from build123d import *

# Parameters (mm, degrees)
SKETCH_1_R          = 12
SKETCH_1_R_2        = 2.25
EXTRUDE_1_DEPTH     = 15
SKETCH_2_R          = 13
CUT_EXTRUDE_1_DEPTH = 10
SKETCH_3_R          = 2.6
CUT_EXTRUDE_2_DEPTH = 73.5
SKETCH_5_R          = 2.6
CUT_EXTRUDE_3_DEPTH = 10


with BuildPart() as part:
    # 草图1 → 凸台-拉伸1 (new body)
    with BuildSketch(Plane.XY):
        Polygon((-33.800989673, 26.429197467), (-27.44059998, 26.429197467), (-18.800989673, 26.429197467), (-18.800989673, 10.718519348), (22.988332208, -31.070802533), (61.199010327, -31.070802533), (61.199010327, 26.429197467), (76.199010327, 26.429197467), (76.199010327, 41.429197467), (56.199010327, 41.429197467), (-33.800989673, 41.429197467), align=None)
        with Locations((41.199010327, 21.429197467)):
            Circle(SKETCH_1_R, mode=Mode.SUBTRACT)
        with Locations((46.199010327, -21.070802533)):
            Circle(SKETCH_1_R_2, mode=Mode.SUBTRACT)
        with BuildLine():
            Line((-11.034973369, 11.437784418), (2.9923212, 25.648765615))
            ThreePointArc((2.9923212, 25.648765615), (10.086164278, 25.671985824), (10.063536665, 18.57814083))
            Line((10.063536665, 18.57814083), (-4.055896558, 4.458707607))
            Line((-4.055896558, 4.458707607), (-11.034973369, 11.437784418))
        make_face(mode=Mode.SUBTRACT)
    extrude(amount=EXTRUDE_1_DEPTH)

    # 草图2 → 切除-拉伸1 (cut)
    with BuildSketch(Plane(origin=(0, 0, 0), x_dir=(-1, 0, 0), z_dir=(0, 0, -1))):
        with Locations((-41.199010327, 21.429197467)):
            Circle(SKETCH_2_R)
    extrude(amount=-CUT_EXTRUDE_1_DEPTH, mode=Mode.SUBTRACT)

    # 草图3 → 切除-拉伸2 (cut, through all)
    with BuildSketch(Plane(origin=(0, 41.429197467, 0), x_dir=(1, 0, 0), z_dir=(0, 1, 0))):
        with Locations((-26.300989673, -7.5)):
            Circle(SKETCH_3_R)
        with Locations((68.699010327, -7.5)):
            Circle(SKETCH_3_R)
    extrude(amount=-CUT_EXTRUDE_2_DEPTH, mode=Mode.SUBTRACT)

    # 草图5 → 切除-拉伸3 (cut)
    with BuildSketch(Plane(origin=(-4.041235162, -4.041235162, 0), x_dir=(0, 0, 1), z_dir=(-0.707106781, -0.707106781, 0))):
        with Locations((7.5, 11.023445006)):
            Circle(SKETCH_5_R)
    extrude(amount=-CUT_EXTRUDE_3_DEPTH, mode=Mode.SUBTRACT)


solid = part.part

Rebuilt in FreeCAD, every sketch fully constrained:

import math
import FreeCAD as App
import Part
import Sketcher
from FreeCAD import Vector
Q = App.Units.Quantity

doc = App.newDocument("Part")
body = doc.addObject("PartDesign::Body", "Body")

# Sketch on XY plane
sketch1 = body.newObject("Sketcher::SketchObject", "Sketch")
sketch1.AttachmentSupport = (doc.getObject("XY_Plane"), [""])
sketch1.MapMode = "FlatFace"
sketch1.addGeometry([
    Part.LineSegment(Vector(-33.8, 26.4, 0), Vector(-18.8, 26.4, 0)),  # 0
    Part.LineSegment(Vector(-18.8, 26.4, 0), Vector(-18.8, 10.7, 0)),  # 1
    Part.LineSegment(Vector(-18.8, 10.7, 0), Vector(23, -31.1, 0)),  # 2
    Part.LineSegment(Vector(23, -31.1, 0), Vector(61.2, -31.1, 0)),  # 3
    Part.LineSegment(Vector(61.2, -31.1, 0), Vector(61.2, 26.4, 0)),  # 4
    Part.LineSegment(Vector(61.2, 26.4, 0), Vector(76.2, 26.4, 0)),  # 5
    Part.LineSegment(Vector(76.2, 26.4, 0), Vector(76.2, 41.4, 0)),  # 6
    Part.LineSegment(Vector(76.2, 41.4, 0), Vector(-33.8, 41.4, 0)),  # 7
    Part.LineSegment(Vector(-33.8, 41.4, 0), Vector(-33.8, 26.4, 0)),  # 8
    Part.Circle(Vector(46.2, -21.1, 0), Vector(0, 0, 1), 2.2),  # 9
    Part.LineSegment(Vector(-4.1, 4.5, 0), Vector(-11, 11.4, 0)),  # 10
    Part.LineSegment(Vector(-11, 11.4, 0), Vector(3, 25.6, 0)),  # 11
    Part.ArcOfCircle(Part.Circle(Vector(6.6, 22.1, 0), Vector(0, 0, 1), 5), math.radians(-45), math.radians(135)),  # 12
    Part.LineSegment(Vector(10.1, 18.6, 0), Vector(-4.1, 4.5, 0)),  # 13
    Part.Circle(Vector(41.2, 21.4, 0), Vector(0, 0, 1), 12),  # 14
], False)
sketch1.addConstraint([
    Sketcher.Constraint("Coincident", 0, 2, 1, 1),
    Sketcher.Constraint("Coincident", 1, 2, 2, 1),
    Sketcher.Constraint("Coincident", 2, 2, 3, 1),
    Sketcher.Constraint("Coincident", 3, 2, 4, 1),
    Sketcher.Constraint("Coincident", 4, 2, 5, 1),
    Sketcher.Constraint("Coincident", 5, 2, 6, 1),
    Sketcher.Constraint("Coincident", 6, 2, 7, 1),
    Sketcher.Constraint("Coincident", 7, 2, 8, 1),
    Sketcher.Constraint("Coincident", 8, 2, 0, 1),
    Sketcher.Constraint("Coincident", 10, 2, 11, 1),
    Sketcher.Constraint("Tangent", 11, 2, 12, 2),
    Sketcher.Constraint("Coincident", 12, 1, 13, 1),
    Sketcher.Constraint("Coincident", 13, 2, 10, 1),
    Sketcher.Constraint("Horizontal", 0),
    Sketcher.Constraint("Vertical", 1),
    Sketcher.Constraint("Horizontal", 3),
    Sketcher.Constraint("Vertical", 4),
    Sketcher.Constraint("Horizontal", 5),
    Sketcher.Constraint("Vertical", 6),
    Sketcher.Constraint("Horizontal", 7),
    Sketcher.Constraint("Vertical", 8),
    Sketcher.Constraint("Parallel", 2, 10),
    Sketcher.Constraint("Perpendicular", 10, 13),
    Sketcher.Constraint("Horizontal", 0, 2, 4, 2),
    Sketcher.Constraint("Equal", 0, 5),
    Sketcher.Constraint("Equal", 5, 6),
    Sketcher.Constraint("Diameter", 14, 24.0),
    Sketcher.Constraint("Radius", 12, 5.0),
    Sketcher.Constraint("Diameter", 9, 4.5),
    Sketcher.Constraint("DistanceX", 0, 1, 0, 2, 15.0),
    Sketcher.Constraint("DistanceX", 7, 2, 7, 1, 110.0),
    Sketcher.Constraint("Angle", 2, Q("-45 deg")),
    Sketcher.Constraint("DistanceY", 4, 1, 4, 2, 57.5),
    Sketcher.Constraint("DistanceX", 14, 3, 9, 3, 5.0),
    Sketcher.Constraint("DistanceX", 0, 2, 14, 3, 60.0),
    Sketcher.Constraint("DistanceY", 14, 3, 0, 2, 5.0),
    Sketcher.Constraint("DistanceY", 2, 2, 9, 3, 10.0),
    Sketcher.Constraint("Distance", 11, 19.967899),
    Sketcher.Constraint("DistanceX", 3, 1, 3, 2, 38.210678),
    Sketcher.Constraint("DistanceX", -1, 1, 9, 3, 46.19901),
    Sketcher.Constraint("DistanceX", -1, 1, 12, 3, 6.550778),
    Sketcher.Constraint("DistanceY", -1, 1, 1, 2, 10.718519),
    Sketcher.Constraint("DistanceX", -1, 1, 11, 2, 2.992321),
    Sketcher.Constraint("DistanceY", -1, 1, 12, 1, 18.578141),
    Sketcher.Constraint("DistanceY", 11, 2, 0, 2, 0.780432),
])
pad1 = body.newObject("PartDesign::Pad", "Pad")
pad1.Profile = sketch1
pad1.Length = 15

# Sketch on XY plane
sketch2 = body.newObject("Sketcher::SketchObject", "Sketch001")
sketch2.AttachmentSupport = (doc.getObject("XY_Plane"), [""])
sketch2.MapMode = "FlatFace"
sketch2.addGeometry(Part.Circle(Vector(41, 21, 0), Vector(0, 0, 1), 13), False)
sketch2.addConstraint([
    Sketcher.Constraint("Diameter", 0, 26.0),
    Sketcher.Constraint("DistanceX", -1, 1, 0, 3, 41.19901),
    Sketcher.Constraint("DistanceY", -1, 1, 0, 3, 21.429197),
])
pocket1 = body.newObject("PartDesign::Pocket", "Pocket")
pocket1.Profile = sketch2
pocket1.Length = 10
pocket1.Reversed = True

# Sketch on XZ plane
sketch3 = body.newObject("Sketcher::SketchObject", "Sketch002")
sketch3.AttachmentSupport = (doc.getObject("XZ_Plane"), [""])
sketch3.MapMode = "FlatFace"
sketch3.AttachmentOffset = App.Placement(Vector(0, 0, -41.429197), App.Rotation())
sketch3.addGeometry([
    Part.Circle(Vector(-26.3, 7.5, 0), Vector(0, 0, 1), 2.6),
    Part.Circle(Vector(68.7, 7.5, 0), Vector(0, 0, 1), 2.6),
], False)
sketch3.addConstraint([
    Sketcher.Constraint("Equal", 0, 1),
    Sketcher.Constraint("Horizontal", 0, 3, 1, 3),
    Sketcher.Constraint("Diameter", 0, 5.2),
    Sketcher.Constraint("DistanceX", 0, 3, 1, 3, 95.0),
    Sketcher.Constraint("DistanceY", -1, 1, 0, 3, 7.5),
    Sketcher.Constraint("DistanceX", 0, 3, -1, 1, 26.30099),
])
pocket2 = body.newObject("PartDesign::Pocket", "Pocket001")
pocket2.Profile = sketch3
pocket2.Type = "ThroughAll"
pocket2.Reversed = True

# Sketch on an angled plane
sketch4 = body.newObject("Sketcher::SketchObject", "Sketch003")
sketch4.Placement = App.Placement(Vector(-4.041235, -4.041235, 0), App.Rotation(Vector(0, 0, 1), Vector(-0.707106781, 0.707106781, 0), Vector(-0.707106781, -0.707106781, 0), "ZXY"))
sketch4.addGeometry(Part.Circle(Vector(7.5, 11, 0), Vector(0, 0, 1), 2.6), False)
sketch4.addConstraint([
    Sketcher.Constraint("Diameter", 0, 5.2),
    Sketcher.Constraint("DistanceX", -1, 1, 0, 3, 7.5),
    Sketcher.Constraint("DistanceY", -1, 1, 0, 3, 11.023445),
])
pocket3 = body.newObject("PartDesign::Pocket", "Pocket002")
pocket3.Profile = sketch4
pocket3.Length = 10

doc.recompute()
